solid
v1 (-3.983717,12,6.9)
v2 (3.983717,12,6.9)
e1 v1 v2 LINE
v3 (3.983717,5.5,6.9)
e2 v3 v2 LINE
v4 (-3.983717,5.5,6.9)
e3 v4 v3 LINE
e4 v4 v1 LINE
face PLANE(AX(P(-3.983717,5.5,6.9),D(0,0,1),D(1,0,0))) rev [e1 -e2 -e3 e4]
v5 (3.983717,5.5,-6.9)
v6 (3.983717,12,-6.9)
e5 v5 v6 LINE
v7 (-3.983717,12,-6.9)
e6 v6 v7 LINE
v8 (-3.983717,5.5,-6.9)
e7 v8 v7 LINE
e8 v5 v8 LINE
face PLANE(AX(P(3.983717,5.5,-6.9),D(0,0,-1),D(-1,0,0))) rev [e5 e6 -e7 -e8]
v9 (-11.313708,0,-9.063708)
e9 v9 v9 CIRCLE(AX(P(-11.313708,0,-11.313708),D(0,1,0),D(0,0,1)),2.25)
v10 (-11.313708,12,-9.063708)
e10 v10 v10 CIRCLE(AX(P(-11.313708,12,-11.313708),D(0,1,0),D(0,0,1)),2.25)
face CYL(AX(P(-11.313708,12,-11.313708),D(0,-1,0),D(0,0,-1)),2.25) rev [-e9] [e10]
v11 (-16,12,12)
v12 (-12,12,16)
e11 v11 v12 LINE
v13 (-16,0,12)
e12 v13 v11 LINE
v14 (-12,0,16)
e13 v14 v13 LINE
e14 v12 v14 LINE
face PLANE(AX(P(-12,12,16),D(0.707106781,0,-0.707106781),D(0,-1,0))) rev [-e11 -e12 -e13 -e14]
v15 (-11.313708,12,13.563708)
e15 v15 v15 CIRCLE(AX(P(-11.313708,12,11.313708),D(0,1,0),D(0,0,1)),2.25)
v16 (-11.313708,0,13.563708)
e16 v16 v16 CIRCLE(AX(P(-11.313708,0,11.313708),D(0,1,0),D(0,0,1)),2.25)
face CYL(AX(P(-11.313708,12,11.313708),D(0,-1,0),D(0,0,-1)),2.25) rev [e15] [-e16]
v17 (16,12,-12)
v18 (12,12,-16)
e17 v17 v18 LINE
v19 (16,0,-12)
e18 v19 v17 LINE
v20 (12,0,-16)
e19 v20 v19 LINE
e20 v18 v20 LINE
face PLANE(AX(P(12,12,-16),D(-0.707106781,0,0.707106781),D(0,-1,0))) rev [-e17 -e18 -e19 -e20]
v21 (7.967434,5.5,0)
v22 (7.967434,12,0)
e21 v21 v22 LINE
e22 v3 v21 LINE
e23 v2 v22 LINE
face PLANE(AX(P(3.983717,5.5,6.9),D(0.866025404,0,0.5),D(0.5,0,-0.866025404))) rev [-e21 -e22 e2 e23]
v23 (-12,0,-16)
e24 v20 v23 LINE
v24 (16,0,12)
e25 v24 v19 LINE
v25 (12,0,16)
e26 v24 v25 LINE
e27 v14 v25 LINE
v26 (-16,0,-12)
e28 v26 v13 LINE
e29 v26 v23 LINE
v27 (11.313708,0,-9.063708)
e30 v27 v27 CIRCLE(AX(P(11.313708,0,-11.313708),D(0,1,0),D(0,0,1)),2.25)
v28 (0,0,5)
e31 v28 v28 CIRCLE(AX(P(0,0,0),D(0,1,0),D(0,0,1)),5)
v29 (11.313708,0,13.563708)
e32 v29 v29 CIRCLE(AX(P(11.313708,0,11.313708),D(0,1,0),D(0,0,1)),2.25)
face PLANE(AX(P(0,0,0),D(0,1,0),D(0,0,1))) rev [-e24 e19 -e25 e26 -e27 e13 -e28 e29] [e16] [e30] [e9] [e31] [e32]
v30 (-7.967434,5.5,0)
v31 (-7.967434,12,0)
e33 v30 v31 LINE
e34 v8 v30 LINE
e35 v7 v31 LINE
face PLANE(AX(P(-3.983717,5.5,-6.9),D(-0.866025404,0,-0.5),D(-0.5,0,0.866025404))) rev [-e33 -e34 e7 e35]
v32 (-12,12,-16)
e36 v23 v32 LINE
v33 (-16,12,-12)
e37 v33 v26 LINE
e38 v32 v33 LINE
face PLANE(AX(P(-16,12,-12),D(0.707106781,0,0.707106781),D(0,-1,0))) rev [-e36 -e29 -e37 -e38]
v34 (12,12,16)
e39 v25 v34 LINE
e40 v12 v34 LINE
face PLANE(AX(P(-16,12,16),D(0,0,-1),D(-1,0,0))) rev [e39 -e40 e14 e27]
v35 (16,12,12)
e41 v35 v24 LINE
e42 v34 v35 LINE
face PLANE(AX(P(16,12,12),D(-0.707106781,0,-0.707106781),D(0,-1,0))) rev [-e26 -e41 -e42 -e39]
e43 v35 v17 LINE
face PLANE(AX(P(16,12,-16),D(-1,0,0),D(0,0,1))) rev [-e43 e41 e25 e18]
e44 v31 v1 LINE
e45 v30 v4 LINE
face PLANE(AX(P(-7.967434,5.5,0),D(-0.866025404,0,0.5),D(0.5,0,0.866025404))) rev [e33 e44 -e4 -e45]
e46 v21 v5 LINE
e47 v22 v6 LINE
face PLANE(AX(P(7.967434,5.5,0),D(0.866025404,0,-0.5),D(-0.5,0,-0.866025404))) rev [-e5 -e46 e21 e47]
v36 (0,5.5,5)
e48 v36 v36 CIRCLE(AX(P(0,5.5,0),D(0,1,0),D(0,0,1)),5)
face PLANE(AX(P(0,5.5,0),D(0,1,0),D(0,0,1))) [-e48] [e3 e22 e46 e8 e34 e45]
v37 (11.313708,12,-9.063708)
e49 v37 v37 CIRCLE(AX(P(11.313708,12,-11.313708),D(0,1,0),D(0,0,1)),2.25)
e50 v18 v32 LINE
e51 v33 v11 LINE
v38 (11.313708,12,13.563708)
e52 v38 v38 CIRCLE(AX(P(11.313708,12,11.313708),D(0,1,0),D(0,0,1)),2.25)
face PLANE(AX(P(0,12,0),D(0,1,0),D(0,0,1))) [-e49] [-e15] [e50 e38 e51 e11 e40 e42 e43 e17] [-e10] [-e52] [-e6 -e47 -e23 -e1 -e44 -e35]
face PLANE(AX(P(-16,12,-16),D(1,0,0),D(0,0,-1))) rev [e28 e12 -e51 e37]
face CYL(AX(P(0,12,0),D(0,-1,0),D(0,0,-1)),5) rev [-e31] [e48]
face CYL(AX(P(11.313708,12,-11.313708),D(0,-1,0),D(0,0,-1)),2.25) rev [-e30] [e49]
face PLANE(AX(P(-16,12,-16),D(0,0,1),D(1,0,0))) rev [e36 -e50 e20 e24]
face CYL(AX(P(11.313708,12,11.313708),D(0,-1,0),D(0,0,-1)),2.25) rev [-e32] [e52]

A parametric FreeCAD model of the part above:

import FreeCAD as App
import Part
import Sketcher
Q = App.Units.Quantity


def edges_at(feature, points):
    """Names of the edges that pass closest to the given points."""
    edges = feature.Shape.Edges
    near = lambda p: min(range(len(edges)), key=lambda i: edges[i].distToShape(Part.Vertex(*p))[0])
    return sorted({f"Edge{near(p) + 1}" for p in points})

doc = App.newDocument("Part")
body = doc.addObject("PartDesign::Body", "Body")

sketch1 = doc.addObject("Sketcher::SketchObject", "Sketch")
body.addObject(sketch1)
sketch1.AttachmentSupport = (doc.XZ_Plane, [""])
sketch1.MapMode = "FlatFace"
sketch1.addGeometry(Part.LineSegment(App.Vector(-16, -16, 0), App.Vector(-16, 16, 0)), False)
sketch1.addGeometry(Part.LineSegment(App.Vector(-16, 16, 0), App.Vector(16, 16, 0)), False)
sketch1.addGeometry(Part.LineSegment(App.Vector(16, 16, 0), App.Vector(16, -16, 0)), False)
sketch1.addGeometry(Part.LineSegment(App.Vector(16, -16, 0), App.Vector(-16, -16, 0)), False)
sketch1.addGeometry(Part.Circle(App.Vector(-11.3, 11.3, 0), App.Vector(0, 0, 1), 2.2), False)
sketch1.addGeometry(Part.Circle(App.Vector(0, 0, 0), App.Vector(0, 0, 1), 5), False)
sketch1.addGeometry(Part.Circle(App.Vector(11.3, 11.3, 0), App.Vector(0, 0, 1), 2.2), False)
sketch1.addGeometry(Part.Circle(App.Vector(-11.3, -11.3, 0), App.Vector(0, 0, 1), 2.2), False)
sketch1.addGeometry(Part.Circle(App.Vector(11.3, -11.3, 0), App.Vector(0, 0, 1), 2.2), False)
sketch1.addConstraint(Sketcher.Constraint("Coincident", 0, 2, 1, 1))
sketch1.addConstraint(Sketcher.Constraint("Coincident", 1, 2, 2, 1))
sketch1.addConstraint(Sketcher.Constraint("Coincident", 2, 2, 3, 1))
sketch1.addConstraint(Sketcher.Constraint("Coincident", 3, 2, 0, 1))
sketch1.addConstraint(Sketcher.Constraint("Vertical", 0))
sketch1.addConstraint(Sketcher.Constraint("Horizontal", 1))
sketch1.addConstraint(Sketcher.Constraint("Vertical", 2))
sketch1.addConstraint(Sketcher.Constraint("Horizontal", 3))
sketch1.addConstraint(Sketcher.Constraint("Coincident", 5, 3, -1, 1))
sketch1.addConstraint(Sketcher.Constraint("Equal", 4, 6))
sketch1.addConstraint(Sketcher.Constraint("Equal", 6, 7))
sketch1.addConstraint(Sketcher.Constraint("Equal", 7, 8))
sketch1.addConstraint(Sketcher.Constraint("Symmetric", 6, 3, 7, 3, -1, 1))
sketch1.addConstraint(Sketcher.Constraint("Symmetric", 4, 3, 8, 3, -1, 1))
sketch1.addConstraint(Sketcher.Constraint("Symmetric", 0, 2, 2, 2, -1, 1))
sketch1.addConstraint(Sketcher.Constraint("Symmetric", 4, 3, 6, 3, -2))
sketch1.addConstraint(Sketcher.Constraint("Equal", 3, 0))
sketch1.addConstraint(Sketcher.Constraint("Diameter", 5, Q("10 mm")))
sketch1.addConstraint(Sketcher.Constraint("Diameter", 4, Q("4.5 mm")))
sketch1.addConstraint(Sketcher.Constraint("DistanceX", 1, 1, 1, 2, Q("32 mm")))
sketch1.addConstraint(Sketcher.Constraint("DistanceX", 4, 3, -1, 1, Q("11.313708 mm")))
sketch1.addConstraint(Sketcher.Constraint("DistanceY", -1, 1, 4, 3, Q("11.313708 mm")))
pad1 = doc.addObject("PartDesign::Pad", "Pad")
body.addObject(pad1)
pad1.Profile = sketch1
pad1.Length = 12
pad1.Reversed = True
doc.recompute()

chamfer = doc.addObject("PartDesign::Chamfer", "Chamfer")
body.addObject(chamfer)
chamfer.Base = (pad1, edges_at(pad1, [
    (16, 6, 16),
    (-16, 6, 16),
    (-16, 6, -16),
    (16, 6, -16),
]))
chamfer.Size = 4

sketch2 = doc.addObject("Sketcher::SketchObject", "Sketch001")
body.addObject(sketch2)
sketch2.AttachmentSupport = (doc.XZ_Plane, [""])
sketch2.MapMode = "FlatFace"
sketch2.AttachmentOffset = App.Placement(App.Vector(0, 0, -12), App.Rotation())
sketch2.addGeometry(Part.LineSegment(App.Vector(4, 7, 0), App.Vector(8, 0, 0)), False)
sketch2.addGeometry(Part.LineSegment(App.Vector(8, 0, 0), App.Vector(4, -7, 0)), False)
sketch2.addGeometry(Part.LineSegment(App.Vector(4, -7, 0), App.Vector(-4, -7, 0)), False)
sketch2.addGeometry(Part.LineSegment(App.Vector(-4, -7, 0), App.Vector(-8, 0, 0)), False)
sketch2.addGeometry(Part.LineSegment(App.Vector(-8, 0, 0), App.Vector(-4, 7, 0)), False)
sketch2.addGeometry(Part.LineSegment(App.Vector(-4, 7, 0), App.Vector(4, 7, 0)), False)
sketch2.addConstraint(Sketcher.Constraint("Coincident", 0, 2, 1, 1))
sketch2.addConstraint(Sketcher.Constraint("Coincident", 1, 2, 2, 1))
sketch2.addConstraint(Sketcher.Constraint("Coincident", 2, 2, 3, 1))
sketch2.addConstraint(Sketcher.Constraint("Coincident", 3, 2, 4, 1))
sketch2.addConstraint(Sketcher.Constraint("Coincident", 4, 2, 5, 1))
sketch2.addConstraint(Sketcher.Constraint("Coincident", 5, 2, 0, 1))
sketch2.addConstraint(Sketcher.Constraint("Horizontal", 2))
sketch2.addConstraint(Sketcher.Constraint("Horizontal", 5))
sketch2.addConstraint(Sketcher.Constraint("Symmetric", 0, 2, 3, 2, -1, 1))
sketch2.addConstraint(Sketcher.Constraint("Symmetric", 1, 2, 4, 2, -1, 1))
sketch2.addConstraint(Sketcher.Constraint("PointOnObject", 0, 2, -1))
sketch2.addConstraint(Sketcher.Constraint("Parallel", 0, 3))
sketch2.addConstraint(Sketcher.Constraint("Vertical", 2, 2, 4, 2))
sketch2.addConstraint(Sketcher.Constraint("Angle", 0, Q("-60 deg")))
sketch2.addConstraint(Sketcher.Constraint("DistanceY", 1, 2, -1, 1, Q("6.9 mm")))
sketch2.addConstraint(Sketcher.Constraint("DistanceX", 2, 2, 2, 1, Q("7.967434 mm")))
pocket1 = doc.addObject("PartDesign::Pocket", "Pocket")
body.addObject(pocket1)
pocket1.Profile = sketch2
pocket1.Length = 6.5
pocket1.Reversed = True

doc.recompute()
